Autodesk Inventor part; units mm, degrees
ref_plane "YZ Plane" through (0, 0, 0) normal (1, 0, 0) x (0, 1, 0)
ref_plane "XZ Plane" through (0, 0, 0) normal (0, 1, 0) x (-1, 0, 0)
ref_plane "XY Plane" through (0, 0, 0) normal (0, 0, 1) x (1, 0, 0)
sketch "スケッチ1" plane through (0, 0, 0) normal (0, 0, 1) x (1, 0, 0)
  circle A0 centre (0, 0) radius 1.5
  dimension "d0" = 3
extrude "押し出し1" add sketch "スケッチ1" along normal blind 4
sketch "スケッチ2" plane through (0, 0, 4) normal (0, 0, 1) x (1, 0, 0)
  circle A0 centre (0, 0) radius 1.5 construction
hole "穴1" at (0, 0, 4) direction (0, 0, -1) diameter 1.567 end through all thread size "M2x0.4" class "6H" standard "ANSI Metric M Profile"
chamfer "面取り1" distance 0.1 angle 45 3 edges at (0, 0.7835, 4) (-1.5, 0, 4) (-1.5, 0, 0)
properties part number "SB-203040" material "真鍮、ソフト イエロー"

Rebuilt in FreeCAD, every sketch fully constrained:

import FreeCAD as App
import Part
import Sketcher

V = App.Vector
Q = App.Units.Quantity


def edges_at(feature, points):
    """Names of the edges that pass closest to the given points."""
    edges = feature.Shape.Edges
    near = lambda p: min(range(len(edges)), key=lambda i: edges[i].distToShape(Part.Vertex(*p))[0])
    return sorted({f"Edge{near(p) + 1}" for p in points})

doc = App.newDocument("Part")
body = doc.addObject("PartDesign::Body", "Body")

# Sketch on XY plane
sketch1 = doc.addObject("Sketcher::SketchObject", "Sketch")
body.addObject(sketch1)
sketch1.AttachmentSupport = (doc.XY_Plane, [""])
sketch1.MapMode = "FlatFace"
sketch1.addGeometry(Part.Circle(V(0, 0, 0), V(0, 0, 1), 1.5), False)
sketch1.addConstraint([
    Sketcher.Constraint("Coincident", 0, 3, -1, 1),
    Sketcher.Constraint("Diameter", 0, Q("3 mm")),
])
pad1 = doc.addObject("PartDesign::Pad", "Pad")
body.addObject(pad1)
pad1.Profile = sketch1
pad1.Length = 4

# Sketch on XY plane
sketch2 = doc.addObject("Sketcher::SketchObject", "Sketch001")
body.addObject(sketch2)
sketch2.AttachmentSupport = (doc.XY_Plane, [""])
sketch2.MapMode = "FlatFace"
sketch2.AttachmentOffset = App.Placement(V(0, 0, 4), App.Rotation())
sketch2.addGeometry(Part.Circle(V(0, 0, 0), V(0, 0, 1), 0.7835), False)
sketch2.addConstraint([
    Sketcher.Constraint("Coincident", 0, 3, -1, 1),
    Sketcher.Constraint("Diameter", 0, Q("1.567 mm")),
])
doc.recompute()
hole = doc.addObject("PartDesign::Hole", "Hole")
body.addObject(hole)
hole.Profile = sketch2
hole.ThreadType = "None"
hole.Diameter = 1.567
hole.DepthType = "ThroughAll"
doc.recompute()

chamfer = doc.addObject("PartDesign::Chamfer", "Chamfer")
body.addObject(chamfer)
chamfer.Base = (hole, edges_at(hole, [(0, 0.783, 4), (-1.5, 0, 4), (-1.5, 0, 0)]))
chamfer.Size = 0.1

doc.recompute()
